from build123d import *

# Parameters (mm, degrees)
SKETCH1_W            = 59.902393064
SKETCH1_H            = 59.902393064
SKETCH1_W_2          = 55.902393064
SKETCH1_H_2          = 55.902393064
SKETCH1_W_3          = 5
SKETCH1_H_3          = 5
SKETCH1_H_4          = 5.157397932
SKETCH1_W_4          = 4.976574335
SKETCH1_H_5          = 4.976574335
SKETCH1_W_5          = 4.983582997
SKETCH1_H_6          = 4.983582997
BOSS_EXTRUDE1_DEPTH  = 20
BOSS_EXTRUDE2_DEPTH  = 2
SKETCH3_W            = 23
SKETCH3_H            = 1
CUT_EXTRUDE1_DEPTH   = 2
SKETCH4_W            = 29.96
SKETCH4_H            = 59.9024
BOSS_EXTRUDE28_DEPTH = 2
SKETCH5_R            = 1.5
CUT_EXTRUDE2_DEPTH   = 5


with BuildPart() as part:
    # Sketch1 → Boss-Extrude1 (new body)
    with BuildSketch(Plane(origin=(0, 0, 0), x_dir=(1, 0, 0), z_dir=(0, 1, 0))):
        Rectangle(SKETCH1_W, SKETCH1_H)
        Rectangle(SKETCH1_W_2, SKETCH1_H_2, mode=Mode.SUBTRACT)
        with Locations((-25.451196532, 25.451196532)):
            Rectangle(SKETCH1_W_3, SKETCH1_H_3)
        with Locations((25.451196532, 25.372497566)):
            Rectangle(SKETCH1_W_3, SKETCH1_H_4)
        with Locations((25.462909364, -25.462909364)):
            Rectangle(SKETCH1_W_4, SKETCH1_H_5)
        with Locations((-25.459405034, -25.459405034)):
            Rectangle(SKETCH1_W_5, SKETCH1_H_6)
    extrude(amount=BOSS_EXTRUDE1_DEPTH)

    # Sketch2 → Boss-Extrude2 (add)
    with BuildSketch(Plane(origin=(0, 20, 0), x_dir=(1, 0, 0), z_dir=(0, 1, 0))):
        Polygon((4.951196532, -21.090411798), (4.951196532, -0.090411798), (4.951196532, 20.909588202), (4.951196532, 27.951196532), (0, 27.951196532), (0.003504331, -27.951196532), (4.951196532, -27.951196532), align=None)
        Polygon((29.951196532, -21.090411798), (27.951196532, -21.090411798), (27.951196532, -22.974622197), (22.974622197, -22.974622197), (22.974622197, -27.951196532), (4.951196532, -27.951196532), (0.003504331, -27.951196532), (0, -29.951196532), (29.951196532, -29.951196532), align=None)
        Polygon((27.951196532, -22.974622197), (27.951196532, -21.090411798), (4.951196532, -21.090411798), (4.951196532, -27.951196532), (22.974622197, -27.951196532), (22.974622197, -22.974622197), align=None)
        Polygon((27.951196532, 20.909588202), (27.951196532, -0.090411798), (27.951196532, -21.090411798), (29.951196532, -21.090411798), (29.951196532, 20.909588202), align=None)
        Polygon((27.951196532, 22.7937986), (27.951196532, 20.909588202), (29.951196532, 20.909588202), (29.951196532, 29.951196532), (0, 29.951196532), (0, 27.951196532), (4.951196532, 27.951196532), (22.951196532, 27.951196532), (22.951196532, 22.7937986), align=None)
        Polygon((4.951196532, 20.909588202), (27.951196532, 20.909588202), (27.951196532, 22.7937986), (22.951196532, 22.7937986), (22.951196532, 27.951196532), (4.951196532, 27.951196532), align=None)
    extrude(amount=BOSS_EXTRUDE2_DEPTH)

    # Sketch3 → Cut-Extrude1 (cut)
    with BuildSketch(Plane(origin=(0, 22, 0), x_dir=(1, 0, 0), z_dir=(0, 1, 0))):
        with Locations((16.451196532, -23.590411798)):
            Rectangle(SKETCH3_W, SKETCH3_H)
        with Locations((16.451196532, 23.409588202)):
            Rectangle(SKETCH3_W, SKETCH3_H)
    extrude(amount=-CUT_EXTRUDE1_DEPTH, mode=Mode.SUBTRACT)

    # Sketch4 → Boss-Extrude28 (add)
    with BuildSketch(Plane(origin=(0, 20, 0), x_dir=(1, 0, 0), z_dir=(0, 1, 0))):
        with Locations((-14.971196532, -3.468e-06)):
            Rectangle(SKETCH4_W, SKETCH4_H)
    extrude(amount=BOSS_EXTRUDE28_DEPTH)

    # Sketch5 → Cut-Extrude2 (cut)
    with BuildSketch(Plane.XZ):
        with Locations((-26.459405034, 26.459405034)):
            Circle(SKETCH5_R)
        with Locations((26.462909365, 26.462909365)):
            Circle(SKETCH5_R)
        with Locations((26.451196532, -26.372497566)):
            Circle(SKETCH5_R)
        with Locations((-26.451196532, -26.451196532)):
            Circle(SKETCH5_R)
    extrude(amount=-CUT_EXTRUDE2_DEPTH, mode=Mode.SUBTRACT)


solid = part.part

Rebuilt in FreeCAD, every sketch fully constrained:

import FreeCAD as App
import Part
import Sketcher
from FreeCAD import Vector

doc = App.newDocument("Part")
body = doc.addObject("PartDesign::Body", "Body")

# Sketch on XZ plane
sketch1 = body.newObject("Sketcher::SketchObject", "Sketch")
sketch1.AttachmentSupport = (doc.getObject("XZ_Plane"), [""])
sketch1.MapMode = "FlatFace"
sketch1.addGeometry([
    Part.LineSegment(Vector(-30, -30, 0), Vector(-30, 30, 0)),  # 0
    Part.LineSegment(Vector(-30, 30, 0), Vector(30, 30, 0)),  # 1
    Part.LineSegment(Vector(30, 30, 0), Vector(30, -30, 0)),  # 2
    Part.LineSegment(Vector(30, -30, 0), Vector(-30, -30, 0)),  # 3
    Part.LineSegment(Vector(23, 28, 0), Vector(-23, 28, 0)),  # 4
    Part.LineSegment(Vector(-23, 28, 0), Vector(-23, 23, 0)),  # 5
    Part.LineSegment(Vector(-23, 23, 0), Vector(-28, 23, 0)),  # 6
    Part.LineSegment(Vector(-28, 23, 0), Vector(-28, -23, 0)),  # 7
    Part.LineSegment(Vector(-28, -23, 0), Vector(-23, -23, 0)),  # 8
    Part.LineSegment(Vector(-23, -23, 0), Vector(-23, -28, 0)),  # 9
    Part.LineSegment(Vector(-23, -28, 0), Vector(23, -28, 0)),  # 10
    Part.LineSegment(Vector(23, -28, 0), Vector(23, -22.8, 0)),  # 11
    Part.LineSegment(Vector(23, -22.8, 0), Vector(28, -22.8, 0)),  # 12
    Part.LineSegment(Vector(28, -22.8, 0), Vector(28, 23, 0)),  # 13
    Part.LineSegment(Vector(28, 23, 0), Vector(23, 23, 0)),  # 14
    Part.LineSegment(Vector(23, 23, 0), Vector(23, 28, 0)),  # 15
], False)
sketch1.addConstraint([
    Sketcher.Constraint("Coincident", 0, 2, 1, 1),
    Sketcher.Constraint("Coincident", 1, 2, 2, 1),
    Sketcher.Constraint("Coincident", 2, 2, 3, 1),
    Sketcher.Constraint("Coincident", 3, 2, 0, 1),
    Sketcher.Constraint("Coincident", 4, 2, 5, 1),
    Sketcher.Constraint("Coincident", 5, 2, 6, 1),
    Sketcher.Constraint("Coincident", 6, 2, 7, 1),
    Sketcher.Constraint("Coincident", 7, 2, 8, 1),
    Sketcher.Constraint("Coincident", 8, 2, 9, 1),
    Sketcher.Constraint("Coincident", 9, 2, 10, 1),
    Sketcher.Constraint("Coincident", 10, 2, 11, 1),
    Sketcher.Constraint("Coincident", 11, 2, 12, 1),
    Sketcher.Constraint("Coincident", 12, 2, 13, 1),
    Sketcher.Constraint("Coincident", 13, 2, 14, 1),
    Sketcher.Constraint("Coincident", 14, 2, 15, 1),
    Sketcher.Constraint("Coincident", 15, 2, 4, 1),
    Sketcher.Constraint("Vertical", 0),
    Sketcher.Constraint("Horizontal", 1),
    Sketcher.Constraint("Vertical", 2),
    Sketcher.Constraint("Horizontal", 3),
    Sketcher.Constraint("Horizontal", 4),
    Sketcher.Constraint("Vertical", 5),
    Sketcher.Constraint("Horizontal", 6),
    Sketcher.Constraint("Vertical", 7),
    Sketcher.Constraint("Horizontal", 8),
    Sketcher.Constraint("Vertical", 9),
    Sketcher.Constraint("Horizontal", 10),
    Sketcher.Constraint("Vertical", 11),
    Sketcher.Constraint("Horizontal", 12),
    Sketcher.Constraint("Vertical", 13),
    Sketcher.Constraint("Horizontal", 14),
    Sketcher.Constraint("Vertical", 15),
    Sketcher.Constraint("Symmetric", 0, 2, 2, 2, -1, 1),
    Sketcher.Constraint("Equal", 8, 12),
    Sketcher.Constraint("Equal", 3, 0),
    Sketcher.Constraint("Equal", 6, 5),
    Sketcher.Constraint("Equal", 12, 9),
    Sketcher.Constraint("Equal", 14, 15),
    Sketcher.Constraint("DistanceX", 8, 1, 8, 2, 5.0),
    Sketcher.Constraint("DistanceY", 4, 2, 0, 2, 2.0),
    Sketcher.Constraint("DistanceX", 0, 2, 6, 2, 2.0),
    Sketcher.Constraint("DistanceY", 3, 2, 7, 2, 7.0),
    Sketcher.Constraint("DistanceX", 10, 2, 2, 2, 7.0),
    Sketcher.Constraint("DistanceY", 7, 2, 7, 1, 45.91881),
    Sketcher.Constraint("DistanceY", 13, 1, 13, 2, 45.768421),
    Sketcher.Constraint("DistanceY", 11, 2, -1, 1, 22.793799),
    Sketcher.Constraint("DistanceX", 1, 1, 1, 2, 59.902393),
])
pad1 = body.newObject("PartDesign::Pad", "Pad")
pad1.Profile = sketch1
pad1.Length = 20
pad1.Reversed = True

# Sketch on XZ plane
sketch2 = body.newObject("Sketcher::SketchObject", "Sketch001")
sketch2.AttachmentSupport = (doc.getObject("XZ_Plane"), [""])
sketch2.MapMode = "FlatFace"
sketch2.AttachmentOffset = App.Placement(Vector(0, 0, -20), App.Rotation())
sketch2.addGeometry([
    Part.LineSegment(Vector(0, -28, 0), Vector(0, 28, 0)),  # 0
    Part.LineSegment(Vector(0, 28, 0), Vector(0, 30, 0)),  # 1
    Part.LineSegment(Vector(0, 30, 0), Vector(30, 30, 0)),  # 2
    Part.LineSegment(Vector(30, 30, 0), Vector(30, -30, 0)),  # 3
    Part.LineSegment(Vector(30, -30, 0), Vector(0, -30, 0)),  # 4
    Part.LineSegment(Vector(0, -30, 0), Vector(0, -28, 0)),  # 5
    Part.LineSegment(Vector(28, 21.1, 0), Vector(5, 21.1, 0)),  # 6
    Part.LineSegment(Vector(5, 21.1, 0), Vector(5, -20.9, 0)),  # 7
    Part.LineSegment(Vector(5, -20.9, 0), Vector(28, -20.9, 0)),  # 8
    Part.LineSegment(Vector(28, -20.9, 0), Vector(28, 21.1, 0)),  # 9
], False)
sketch2.addConstraint([
    Sketcher.Constraint("Coincident", 0, 2, 1, 1),
    Sketcher.Constraint("Coincident", 1, 2, 2, 1),
    Sketcher.Constraint("Coincident", 2, 2, 3, 1),
    Sketcher.Constraint("Coincident", 3, 2, 4, 1),
    Sketcher.Constraint("Coincident", 4, 2, 5, 1),
    Sketcher.Constraint("Coincident", 5, 2, 0, 1),
    Sketcher.Constraint("Coincident", 6, 2, 7, 1),
    Sketcher.Constraint("Coincident", 7, 2, 8, 1),
    Sketcher.Constraint("Coincident", 8, 2, 9, 1),
    Sketcher.Constraint("Coincident", 9, 2, 6, 1),
    Sketcher.Constraint("Horizontal", 2),
    Sketcher.Constraint("Vertical", 3),
    Sketcher.Constraint("Horizontal", 4),
    Sketcher.Constraint("Vertical", 5),
    Sketcher.Constraint("Horizontal", 6),
    Sketcher.Constraint("Vertical", 7),
    Sketcher.Constraint("Horizontal", 8),
    Sketcher.Constraint("Vertical", 9),
    Sketcher.Constraint("Symmetric", 1, 2, 4, 2, -1, 1),
    Sketcher.Constraint("PointOnObject", 1, 2, -2),
    Sketcher.Constraint("DistanceX", 6, 2, 6, 1, 23.0),
    Sketcher.Constraint("DistanceY", 5, 1, 5, 2, 2.0),
    Sketcher.Constraint("DistanceY", 7, 2, 7, 1, 42.0),
    Sketcher.Constraint("DistanceY", 0, 2, 1, 2, 2.0),
    Sketcher.Constraint("DistanceX", 6, 2, 2, 2, 25.0),
    Sketcher.Constraint("DistanceX", 2, 1, 2, 2, 29.951197),
    Sketcher.Constraint("DistanceY", 3, 2, 3, 1, 59.902393),
    Sketcher.Constraint("DistanceY", -1, 1, 6, 2, 21.090412),
    Sketcher.Constraint("DistanceX", -1, 1, 0, 2, 0.003504),
])
pad2 = body.newObject("PartDesign::Pad", "Pad001")
pad2.Profile = sketch2
pad2.Length = 2
pad2.Reversed = True

# Sketch on XZ plane
sketch3 = body.newObject("Sketcher::SketchObject", "Sketch002")
sketch3.AttachmentSupport = (doc.getObject("XZ_Plane"), [""])
sketch3.MapMode = "FlatFace"
sketch3.AttachmentOffset = App.Placement(Vector(0, 0, -22), App.Rotation())
sketch3.addGeometry([
    Part.LineSegment(Vector(5, 23.1, 0), Vector(5, 24.1, 0)),  # 0
    Part.LineSegment(Vector(5, 24.1, 0), Vector(28, 24.1, 0)),  # 1
    Part.LineSegment(Vector(28, 24.1, 0), Vector(28, 23.1, 0)),  # 2
    Part.LineSegment(Vector(28, 23.1, 0), Vector(5, 23.1, 0)),  # 3
    Part.LineSegment(Vector(5, -23.9, 0), Vector(5, -22.9, 0)),  # 4
    Part.LineSegment(Vector(5, -22.9, 0), Vector(28, -22.9, 0)),  # 5
    Part.LineSegment(Vector(28, -22.9, 0), Vector(28, -23.9, 0)),  # 6
    Part.LineSegment(Vector(28, -23.9, 0), Vector(5, -23.9, 0)),  # 7
], False)
sketch3.addConstraint([
    Sketcher.Constraint("Coincident", 0, 2, 1, 1),
    Sketcher.Constraint("Coincident", 1, 2, 2, 1),
    Sketcher.Constraint("Coincident", 2, 2, 3, 1),
    Sketcher.Constraint("Coincident", 3, 2, 0, 1),
    Sketcher.Constraint("Coincident", 4, 2, 5, 1),
    Sketcher.Constraint("Coincident", 5, 2, 6, 1),
    Sketcher.Constraint("Coincident", 6, 2, 7, 1),
    Sketcher.Constraint("Coincident", 7, 2, 4, 1),
    Sketcher.Constraint("Vertical", 0),
    Sketcher.Constraint("Horizontal", 1),
    Sketcher.Constraint("Vertical", 2),
    Sketcher.Constraint("Horizontal", 3),
    Sketcher.Constraint("Vertical", 4),
    Sketcher.Constraint("Horizontal", 5),
    Sketcher.Constraint("Vertical", 6),
    Sketcher.Constraint("Horizontal", 7),
    Sketcher.Constraint("Vertical", 3, 2, 4, 2),
    Sketcher.Constraint("Vertical", 2, 2, 5, 2),
    Sketcher.Constraint("Equal", 2, 4),
    Sketcher.Constraint("DistanceX", 1, 1, 1, 2, 23.0),
    Sketcher.Constraint("DistanceY", 0, 1, 0, 2, 1.0),
    Sketcher.Constraint("DistanceY", 4, 2, 3, 2, 46.0),
    Sketcher.Constraint("DistanceY", -1, 1, 0, 2, 24.090412),
    Sketcher.Constraint("DistanceX", -1, 1, 0, 2, 4.951197),
])
pocket1 = body.newObject("PartDesign::Pocket", "Pocket")
pocket1.Profile = sketch3
pocket1.Length = 2
pocket1.Reversed = True

# Sketch on XZ plane
sketch4 = body.newObject("Sketcher::SketchObject", "Sketch003")
sketch4.AttachmentSupport = (doc.getObject("XZ_Plane"), [""])
sketch4.MapMode = "FlatFace"
sketch4.AttachmentOffset = App.Placement(Vector(0, 0, -20), App.Rotation())
sketch4.addGeometry([
    Part.LineSegment(Vector(-30, -30, 0), Vector(-30, 30, 0)),
    Part.LineSegment(Vector(-30, 30, 0), Vector(0, 30, 0)),
    Part.LineSegment(Vector(0, 30, 0), Vector(0, -30, 0)),
    Part.LineSegment(Vector(0, -30, 0), Vector(-30, -30, 0)),
], False)
sketch4.addConstraint([
    Sketcher.Constraint("Coincident", 0, 2, 1, 1),
    Sketcher.Constraint("Coincident", 1, 2, 2, 1),
    Sketcher.Constraint("Coincident", 2, 2, 3, 1),
    Sketcher.Constraint("Coincident", 3, 2, 0, 1),
    Sketcher.Constraint("Vertical", 0),
    Sketcher.Constraint("Horizontal", 1),
    Sketcher.Constraint("Vertical", 2),
    Sketcher.Constraint("Horizontal", 3),
    Sketcher.Constraint("DistanceX", 1, 1, 1, 2, 29.96),
    Sketcher.Constraint("DistanceY", 0, 1, 0, 2, 59.9024),
    Sketcher.Constraint("DistanceX", 0, 2, -1, 1, 29.951197),
    Sketcher.Constraint("DistanceY", -1, 1, 0, 2, 29.951203),
])
pad3 = body.newObject("PartDesign::Pad", "Pad002")
pad3.Profile = sketch4
pad3.Length = 2
pad3.Reversed = True

# Sketch on XZ plane
sketch5 = body.newObject("Sketcher::SketchObject", "Sketch004")
sketch5.AttachmentSupport = (doc.getObject("XZ_Plane"), [""])
sketch5.MapMode = "FlatFace"
sketch5.addGeometry([
    Part.Circle(Vector(-26.5, 26.5, 0), Vector(0, 0, 1), 1.5),
    Part.Circle(Vector(26.5, 26.5, 0), Vector(0, 0, 1), 1.5),
    Part.Circle(Vector(26.5, -26.4, 0), Vector(0, 0, 1), 1.5),
    Part.Circle(Vector(-26.5, -26.5, 0), Vector(0, 0, 1), 1.5),
], False)
sketch5.addConstraint([
    Sketcher.Constraint("Equal", 0, 1),
    Sketcher.Constraint("Equal", 1, 2),
    Sketcher.Constraint("Equal", 2, 3),
    Sketcher.Constraint("Diameter", 0, 3.0),
    Sketcher.Constraint("DistanceX", 0, 3, 2, 3, 52.910602),
    Sketcher.Constraint("DistanceY", 3, 3, 2, 3, 0.078699),
    Sketcher.Constraint("DistanceY", 3, 3, 0, 3, 52.910602),
    Sketcher.Constraint("DistanceX", -1, 1, 1, 3, 26.462909),
    Sketcher.Constraint("DistanceY", -1, 1, 1, 3, 26.462909),
    Sketcher.Constraint("DistanceX", 0, 3, 3, 3, 0.008209),
    Sketcher.Constraint("DistanceX", 0, 3, -1, 1, 26.459405),
    Sketcher.Constraint("DistanceY", -1, 1, 0, 3, 26.459405),
])
pocket2 = body.newObject("PartDesign::Pocket", "Pocket001")
pocket2.Profile = sketch5
pocket2.Length = 5

doc.recompute()
